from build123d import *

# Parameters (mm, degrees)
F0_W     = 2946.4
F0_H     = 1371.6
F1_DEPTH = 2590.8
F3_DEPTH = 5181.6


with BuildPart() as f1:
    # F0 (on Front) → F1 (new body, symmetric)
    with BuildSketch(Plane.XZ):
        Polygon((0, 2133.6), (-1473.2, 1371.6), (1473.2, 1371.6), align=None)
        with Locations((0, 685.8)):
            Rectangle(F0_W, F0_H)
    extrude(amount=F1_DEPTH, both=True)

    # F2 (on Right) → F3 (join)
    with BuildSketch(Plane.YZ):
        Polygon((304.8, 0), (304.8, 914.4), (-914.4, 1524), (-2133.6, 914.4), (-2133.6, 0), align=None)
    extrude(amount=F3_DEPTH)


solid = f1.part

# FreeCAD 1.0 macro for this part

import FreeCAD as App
import Part
import Sketcher
from FreeCAD import Vector
Q = App.Units.Quantity


def add_polygon(sketch, points):
    """Adds a closed chain of lines whose ends are joined by coincident constraints."""
    first, n = sketch.GeometryCount, len(points)
    for a, b in zip(points, points[1:] + points[:1]):
        sketch.addGeometry(Part.LineSegment(App.Vector(*a, 0), App.Vector(*b, 0)), False)
    for i in range(n):
        sketch.addConstraint(Sketcher.Constraint("Coincident", first + i, 2, first + (i + 1) % n, 1))

doc = App.newDocument("Part")
body = doc.addObject("PartDesign::Body", "Body")

# Sketch on XZ plane
sketch1 = body.newObject("Sketcher::SketchObject", "Sketch")
sketch1.AttachmentSupport = (doc.getObject("XZ_Plane"), [""])
sketch1.MapMode = "FlatFace"
add_polygon(sketch1, [(0, 2134), (-1473, 1372), (-1473, 0), (1473, 0), (1473, 1372)])  # lines 0-4
sketch1.addConstraint([
    Sketcher.Constraint("Vertical", 1),
    Sketcher.Constraint("Horizontal", 2),
    Sketcher.Constraint("Vertical", 3),
    Sketcher.Constraint("Symmetric", 1, 2, 2, 2, -1, 1),
    Sketcher.Constraint("PointOnObject", 4, 2, -2),
    Sketcher.Constraint("Horizontal", 0, 2, 3, 2),
    Sketcher.Constraint("DistanceX", 2, 1, 2, 2, Q("116 in")),
    Sketcher.Constraint("DistanceY", 1, 2, 1, 1, Q("54 in")),
    Sketcher.Constraint("DistanceY", -1, 1, 4, 2, Q("84 in")),
])
pad1 = body.newObject("PartDesign::Pad", "Pad")
pad1.Profile = sketch1
pad1.Length = Q("204 in")
pad1.Midplane = True

# Sketch on YZ plane
sketch2 = body.newObject("Sketcher::SketchObject", "Sketch001")
sketch2.AttachmentSupport = (doc.getObject("YZ_Plane"), [""])
sketch2.MapMode = "FlatFace"
add_polygon(sketch2, [(305, 0), (305, 914), (-914, 1524), (-2134, 914), (-2134, 0)])  # lines 0-4
sketch2.addConstraint([
    Sketcher.Constraint("Vertical", 0),
    Sketcher.Constraint("Vertical", 3),
    Sketcher.Constraint("Horizontal", 4),
    Sketcher.Constraint("PointOnObject", 3, 2, -1),
    Sketcher.Constraint("Horizontal", 0, 2, 2, 2),
    Sketcher.Constraint("Equal", 1, 2),
    Sketcher.Constraint("DistanceX", 4, 1, 4, 2, Q("96 in")),
    Sketcher.Constraint("DistanceY", 0, 1, 0, 2, Q("36 in")),
    Sketcher.Constraint("DistanceX", -1, 1, 0, 2, Q("12 in")),
    Sketcher.Constraint("DistanceY", -1, 1, 1, 2, Q("60 in")),
])
pad2 = body.newObject("PartDesign::Pad", "Pad001")
pad2.Profile = sketch2
pad2.Length = Q("204 in")

doc.recompute()
